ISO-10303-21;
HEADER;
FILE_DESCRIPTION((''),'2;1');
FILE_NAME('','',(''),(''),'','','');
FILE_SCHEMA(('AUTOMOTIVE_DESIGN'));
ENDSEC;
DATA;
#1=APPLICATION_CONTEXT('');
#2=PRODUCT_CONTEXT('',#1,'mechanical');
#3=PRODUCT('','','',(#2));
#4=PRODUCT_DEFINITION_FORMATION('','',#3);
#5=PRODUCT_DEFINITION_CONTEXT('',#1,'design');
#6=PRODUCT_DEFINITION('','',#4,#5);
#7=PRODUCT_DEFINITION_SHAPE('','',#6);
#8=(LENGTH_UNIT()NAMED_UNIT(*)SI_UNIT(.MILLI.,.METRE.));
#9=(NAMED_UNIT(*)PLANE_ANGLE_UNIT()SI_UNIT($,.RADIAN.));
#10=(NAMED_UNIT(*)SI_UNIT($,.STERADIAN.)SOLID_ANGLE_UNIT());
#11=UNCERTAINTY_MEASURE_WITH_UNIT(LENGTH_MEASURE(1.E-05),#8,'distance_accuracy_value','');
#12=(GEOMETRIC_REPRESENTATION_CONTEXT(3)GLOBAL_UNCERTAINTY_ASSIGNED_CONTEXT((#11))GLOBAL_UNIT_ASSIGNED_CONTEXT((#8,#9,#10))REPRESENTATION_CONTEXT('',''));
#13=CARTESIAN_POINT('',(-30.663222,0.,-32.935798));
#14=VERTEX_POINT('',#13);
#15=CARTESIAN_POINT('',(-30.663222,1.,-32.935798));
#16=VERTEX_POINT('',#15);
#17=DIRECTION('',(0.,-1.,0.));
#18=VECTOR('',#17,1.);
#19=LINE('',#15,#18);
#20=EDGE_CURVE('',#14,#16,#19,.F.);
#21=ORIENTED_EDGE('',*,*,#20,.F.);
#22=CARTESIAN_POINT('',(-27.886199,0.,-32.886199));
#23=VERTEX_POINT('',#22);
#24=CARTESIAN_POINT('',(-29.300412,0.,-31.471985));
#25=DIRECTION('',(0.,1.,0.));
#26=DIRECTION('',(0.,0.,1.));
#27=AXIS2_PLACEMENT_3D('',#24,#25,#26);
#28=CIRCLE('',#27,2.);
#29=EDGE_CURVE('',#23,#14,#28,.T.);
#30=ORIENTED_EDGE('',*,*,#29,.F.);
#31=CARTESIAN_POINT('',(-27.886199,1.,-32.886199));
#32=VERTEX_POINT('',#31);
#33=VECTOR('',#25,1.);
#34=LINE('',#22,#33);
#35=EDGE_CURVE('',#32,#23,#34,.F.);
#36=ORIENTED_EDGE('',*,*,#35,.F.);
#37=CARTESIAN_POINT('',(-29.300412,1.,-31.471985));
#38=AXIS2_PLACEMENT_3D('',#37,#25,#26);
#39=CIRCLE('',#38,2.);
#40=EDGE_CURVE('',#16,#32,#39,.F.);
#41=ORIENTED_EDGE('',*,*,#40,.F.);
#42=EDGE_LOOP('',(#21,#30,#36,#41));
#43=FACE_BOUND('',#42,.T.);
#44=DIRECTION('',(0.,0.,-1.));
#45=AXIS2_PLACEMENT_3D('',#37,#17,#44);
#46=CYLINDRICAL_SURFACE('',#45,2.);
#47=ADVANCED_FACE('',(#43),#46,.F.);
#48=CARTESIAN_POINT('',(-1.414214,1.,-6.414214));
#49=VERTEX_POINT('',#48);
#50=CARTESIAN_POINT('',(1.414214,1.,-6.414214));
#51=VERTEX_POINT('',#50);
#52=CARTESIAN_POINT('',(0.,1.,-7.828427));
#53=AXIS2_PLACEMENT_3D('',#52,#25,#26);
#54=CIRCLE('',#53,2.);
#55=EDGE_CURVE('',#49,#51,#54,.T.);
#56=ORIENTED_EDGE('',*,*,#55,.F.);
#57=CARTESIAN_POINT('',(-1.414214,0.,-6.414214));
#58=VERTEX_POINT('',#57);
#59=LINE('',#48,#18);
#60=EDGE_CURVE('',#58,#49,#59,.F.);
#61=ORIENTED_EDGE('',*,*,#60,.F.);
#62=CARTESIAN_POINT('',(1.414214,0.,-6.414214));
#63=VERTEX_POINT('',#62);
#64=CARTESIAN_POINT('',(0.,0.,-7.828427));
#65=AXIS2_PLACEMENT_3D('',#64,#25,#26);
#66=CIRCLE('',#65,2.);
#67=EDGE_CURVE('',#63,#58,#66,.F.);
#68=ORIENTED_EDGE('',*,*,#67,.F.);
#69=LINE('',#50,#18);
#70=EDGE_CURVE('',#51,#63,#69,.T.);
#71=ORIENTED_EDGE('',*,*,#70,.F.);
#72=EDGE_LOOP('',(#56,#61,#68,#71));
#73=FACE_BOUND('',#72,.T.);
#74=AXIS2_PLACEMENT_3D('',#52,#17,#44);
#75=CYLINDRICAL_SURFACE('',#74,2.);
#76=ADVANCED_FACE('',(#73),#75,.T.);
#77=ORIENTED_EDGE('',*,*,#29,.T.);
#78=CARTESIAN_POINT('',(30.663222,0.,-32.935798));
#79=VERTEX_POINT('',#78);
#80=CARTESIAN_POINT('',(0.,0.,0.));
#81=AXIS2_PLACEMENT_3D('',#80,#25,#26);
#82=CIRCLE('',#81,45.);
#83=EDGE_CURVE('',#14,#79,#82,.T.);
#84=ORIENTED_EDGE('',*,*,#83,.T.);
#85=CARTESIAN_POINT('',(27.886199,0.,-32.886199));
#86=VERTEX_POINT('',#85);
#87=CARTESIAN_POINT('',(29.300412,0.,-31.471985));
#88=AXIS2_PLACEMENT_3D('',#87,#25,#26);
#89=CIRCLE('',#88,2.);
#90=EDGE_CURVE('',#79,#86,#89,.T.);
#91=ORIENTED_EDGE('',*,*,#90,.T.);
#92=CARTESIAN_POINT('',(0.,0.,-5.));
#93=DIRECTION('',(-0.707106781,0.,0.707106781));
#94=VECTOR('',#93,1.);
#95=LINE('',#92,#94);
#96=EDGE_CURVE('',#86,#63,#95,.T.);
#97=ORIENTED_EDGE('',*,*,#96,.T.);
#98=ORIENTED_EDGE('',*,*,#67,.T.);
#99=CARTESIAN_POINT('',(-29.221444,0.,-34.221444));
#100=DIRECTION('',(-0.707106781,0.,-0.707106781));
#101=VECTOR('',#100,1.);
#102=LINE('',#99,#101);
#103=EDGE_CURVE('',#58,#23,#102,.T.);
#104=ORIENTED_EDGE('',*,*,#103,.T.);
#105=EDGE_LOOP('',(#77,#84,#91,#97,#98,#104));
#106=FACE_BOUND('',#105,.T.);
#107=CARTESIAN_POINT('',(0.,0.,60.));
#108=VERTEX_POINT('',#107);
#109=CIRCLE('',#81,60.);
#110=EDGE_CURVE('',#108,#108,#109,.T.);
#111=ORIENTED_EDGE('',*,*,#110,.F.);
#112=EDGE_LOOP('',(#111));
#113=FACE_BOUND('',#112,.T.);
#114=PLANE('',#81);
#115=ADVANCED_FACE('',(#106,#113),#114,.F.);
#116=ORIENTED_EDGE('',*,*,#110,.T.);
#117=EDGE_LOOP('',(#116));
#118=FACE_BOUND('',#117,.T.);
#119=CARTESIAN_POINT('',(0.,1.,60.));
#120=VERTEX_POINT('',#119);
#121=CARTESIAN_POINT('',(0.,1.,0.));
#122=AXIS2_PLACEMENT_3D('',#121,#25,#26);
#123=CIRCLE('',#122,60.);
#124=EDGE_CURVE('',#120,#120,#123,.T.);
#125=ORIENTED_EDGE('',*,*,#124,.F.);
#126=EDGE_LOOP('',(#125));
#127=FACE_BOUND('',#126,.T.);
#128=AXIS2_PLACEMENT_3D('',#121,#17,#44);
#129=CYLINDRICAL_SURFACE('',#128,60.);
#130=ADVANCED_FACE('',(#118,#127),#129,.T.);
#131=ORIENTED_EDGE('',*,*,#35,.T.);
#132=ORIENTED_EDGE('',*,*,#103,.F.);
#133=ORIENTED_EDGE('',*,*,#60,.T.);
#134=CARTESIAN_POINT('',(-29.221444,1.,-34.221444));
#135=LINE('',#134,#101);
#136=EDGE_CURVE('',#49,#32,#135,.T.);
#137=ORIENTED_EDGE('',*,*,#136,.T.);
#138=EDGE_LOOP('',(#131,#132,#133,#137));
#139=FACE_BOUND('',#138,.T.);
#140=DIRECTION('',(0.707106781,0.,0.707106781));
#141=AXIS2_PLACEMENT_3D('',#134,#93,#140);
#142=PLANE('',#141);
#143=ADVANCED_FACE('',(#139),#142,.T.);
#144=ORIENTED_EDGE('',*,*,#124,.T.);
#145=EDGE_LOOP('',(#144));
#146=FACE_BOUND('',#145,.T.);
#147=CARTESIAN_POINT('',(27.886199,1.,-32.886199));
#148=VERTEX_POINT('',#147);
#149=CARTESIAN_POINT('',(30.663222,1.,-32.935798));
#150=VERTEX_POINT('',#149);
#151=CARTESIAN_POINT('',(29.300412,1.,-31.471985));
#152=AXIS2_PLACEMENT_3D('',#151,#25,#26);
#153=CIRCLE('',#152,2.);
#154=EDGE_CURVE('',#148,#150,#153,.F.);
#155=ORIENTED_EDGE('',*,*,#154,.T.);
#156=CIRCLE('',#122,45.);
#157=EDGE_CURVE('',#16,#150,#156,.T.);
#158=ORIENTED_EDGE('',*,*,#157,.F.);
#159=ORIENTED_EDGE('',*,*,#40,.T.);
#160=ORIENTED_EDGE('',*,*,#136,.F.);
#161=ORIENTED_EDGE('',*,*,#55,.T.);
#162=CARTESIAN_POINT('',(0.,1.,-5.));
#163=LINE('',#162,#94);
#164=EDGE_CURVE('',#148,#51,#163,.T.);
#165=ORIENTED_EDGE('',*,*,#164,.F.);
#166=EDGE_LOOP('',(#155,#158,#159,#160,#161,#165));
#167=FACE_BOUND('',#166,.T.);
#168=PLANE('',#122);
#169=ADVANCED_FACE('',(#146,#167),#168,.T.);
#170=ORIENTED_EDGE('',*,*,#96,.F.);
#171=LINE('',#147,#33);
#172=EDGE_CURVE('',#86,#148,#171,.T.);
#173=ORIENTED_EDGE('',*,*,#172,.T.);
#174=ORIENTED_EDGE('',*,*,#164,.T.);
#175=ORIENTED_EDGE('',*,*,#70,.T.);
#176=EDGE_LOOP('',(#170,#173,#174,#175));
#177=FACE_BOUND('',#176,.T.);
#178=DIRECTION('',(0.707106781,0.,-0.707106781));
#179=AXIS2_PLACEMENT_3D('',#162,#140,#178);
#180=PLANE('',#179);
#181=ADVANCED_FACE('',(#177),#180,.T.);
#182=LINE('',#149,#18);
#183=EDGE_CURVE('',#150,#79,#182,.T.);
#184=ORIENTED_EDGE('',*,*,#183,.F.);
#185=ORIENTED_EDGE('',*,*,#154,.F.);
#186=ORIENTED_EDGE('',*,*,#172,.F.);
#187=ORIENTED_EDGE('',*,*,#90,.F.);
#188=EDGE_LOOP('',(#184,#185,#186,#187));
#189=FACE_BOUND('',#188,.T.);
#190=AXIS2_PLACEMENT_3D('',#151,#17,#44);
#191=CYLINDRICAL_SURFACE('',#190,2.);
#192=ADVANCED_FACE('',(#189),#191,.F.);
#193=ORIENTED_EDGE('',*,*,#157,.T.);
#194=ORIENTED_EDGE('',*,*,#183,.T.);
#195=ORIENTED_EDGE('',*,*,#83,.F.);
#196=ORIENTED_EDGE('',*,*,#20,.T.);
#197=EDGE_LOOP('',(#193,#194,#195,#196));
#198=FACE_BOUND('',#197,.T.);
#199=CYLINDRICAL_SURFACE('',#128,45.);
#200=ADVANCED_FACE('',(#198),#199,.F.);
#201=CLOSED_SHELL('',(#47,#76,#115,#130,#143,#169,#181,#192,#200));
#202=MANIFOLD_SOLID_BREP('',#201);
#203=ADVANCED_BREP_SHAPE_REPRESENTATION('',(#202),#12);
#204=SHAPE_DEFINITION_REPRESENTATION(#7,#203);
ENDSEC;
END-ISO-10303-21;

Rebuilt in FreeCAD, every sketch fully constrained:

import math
import FreeCAD as App
import Part
import Sketcher

V = App.Vector


def edges_at(feature, points):
    """Names of the edges that pass closest to the given points."""
    edges = feature.Shape.Edges
    near = lambda p: min(range(len(edges)), key=lambda i: edges[i].distToShape(Part.Vertex(*p))[0])
    return sorted({f"Edge{near(p) + 1}" for p in points})

doc = App.newDocument("Part")
params = doc.addObject("Spreadsheet::Sheet", "Params")
for row, (alias, value) in enumerate([
    ("sketch1_diameter", "120 mm"),
    ("sketch1_radius", "45 mm"),
    ("pad1_length", "1 mm"),
    ("fillet_radius", "2 mm"),
], start=1):
    params.set(f"A{row}", alias)
    params.set(f"B{row}", "=" + value)
    params.setAlias(f"B{row}", alias)

body = doc.addObject("PartDesign::Body", "Body")

# Sketch on XZ plane
sketch1 = body.newObject("Sketcher::SketchObject", "Sketch")
sketch1.AttachmentSupport = (doc.getObject("XZ_Plane"), [""])
sketch1.MapMode = "FlatFace"
sketch1.addGeometry(Part.Circle(V(0, 0, 0), V(0, 0, 1), 60), False)
sketch1.addGeometry(Part.ArcOfCircle(Part.Circle(V(0, 0, 0), V(0, 0, 1), 45), math.radians(-50), math.radians(230)), False)
sketch1.addGeometry(Part.LineSegment(V(-29, -34, 0), V(0, -5, 0)), False)
sketch1.addGeometry(Part.LineSegment(V(0, -5, 0), V(29, -34, 0)), False)
sketch1.addConstraint(Sketcher.Constraint("Coincident", 1, 2, 2, 1))
sketch1.addConstraint(Sketcher.Constraint("Coincident", 2, 2, 3, 1))
sketch1.addConstraint(Sketcher.Constraint("Coincident", 3, 2, 1, 1))
sketch1.addConstraint(Sketcher.Constraint("Coincident", 0, 3, -1, 1))
sketch1.addConstraint(Sketcher.Constraint("Coincident", 1, 3, -1, 1))
sketch1.addConstraint(Sketcher.Constraint("PointOnObject", 2, 2, -2))
sketch1.addConstraint(Sketcher.Constraint("Perpendicular", 2, 3))
sketch1.addConstraint(Sketcher.Constraint("Horizontal", 1, 2, 3, 2))
sketch1.addConstraint(Sketcher.Constraint("Diameter", 0, 120.0))
sketch1.addConstraint(Sketcher.Constraint("Radius", 1, 45.0))
sketch1.addConstraint(Sketcher.Constraint("DistanceY", 2, 2, -1, 1, 5.0))
sketch1.setExpression("Constraints[8]", "Params.sketch1_diameter")
sketch1.setExpression("Constraints[9]", "Params.sketch1_radius")
pad1 = body.newObject("PartDesign::Pad", "Pad")
pad1.Profile = sketch1
pad1.setExpression("Length", "Params.pad1_length")
pad1.Reversed = True
doc.recompute()

fillet = body.newObject("PartDesign::Fillet", "Fillet")
fillet.Base = (pad1, edges_at(pad1, [(-29.221, 0.5, -34.221), (29.221, 0.5, -34.221), (0, 0.5, -5)]))
fillet.setExpression("Radius", "Params.fillet_radius")

doc.recompute()
